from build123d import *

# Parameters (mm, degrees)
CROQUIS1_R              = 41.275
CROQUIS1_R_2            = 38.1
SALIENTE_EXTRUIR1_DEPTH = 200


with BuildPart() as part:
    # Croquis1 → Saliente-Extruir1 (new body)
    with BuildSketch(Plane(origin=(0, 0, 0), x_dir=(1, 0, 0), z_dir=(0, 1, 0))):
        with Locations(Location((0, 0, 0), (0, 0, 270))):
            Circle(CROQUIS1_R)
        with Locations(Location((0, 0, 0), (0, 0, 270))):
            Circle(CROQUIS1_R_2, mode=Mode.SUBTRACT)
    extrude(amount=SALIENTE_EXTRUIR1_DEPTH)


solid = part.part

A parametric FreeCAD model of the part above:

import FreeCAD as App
import Part
import Sketcher
Q = App.Units.Quantity

doc = App.newDocument("Part")
body = doc.addObject("PartDesign::Body", "Body")

# Sketch on XZ plane
sketch1 = body.newObject("Sketcher::SketchObject", "Sketch")
sketch1.AttachmentSupport = (doc.getObject("XZ_Plane"), [""])
sketch1.MapMode = "FlatFace"
sketch1.addGeometry([
    Part.Circle(App.Vector(0, 0, 0), App.Vector(0, 0, 1), 41),
    Part.Circle(App.Vector(0, 0, 0), App.Vector(0, 0, 1), 38),
], False)
sketch1.addConstraint([
    Sketcher.Constraint("Coincident", 0, 3, -1, 1),
    Sketcher.Constraint("Coincident", 1, 3, -1, 1),
    Sketcher.Constraint("Diameter", 1, Q("3 in")),
    Sketcher.Constraint("Diameter", 0, Q("3.25 in")),
])
pad1 = body.newObject("PartDesign::Pad", "Pad")
pad1.Profile = sketch1
pad1.Length = 200
pad1.Reversed = True

doc.recompute()
